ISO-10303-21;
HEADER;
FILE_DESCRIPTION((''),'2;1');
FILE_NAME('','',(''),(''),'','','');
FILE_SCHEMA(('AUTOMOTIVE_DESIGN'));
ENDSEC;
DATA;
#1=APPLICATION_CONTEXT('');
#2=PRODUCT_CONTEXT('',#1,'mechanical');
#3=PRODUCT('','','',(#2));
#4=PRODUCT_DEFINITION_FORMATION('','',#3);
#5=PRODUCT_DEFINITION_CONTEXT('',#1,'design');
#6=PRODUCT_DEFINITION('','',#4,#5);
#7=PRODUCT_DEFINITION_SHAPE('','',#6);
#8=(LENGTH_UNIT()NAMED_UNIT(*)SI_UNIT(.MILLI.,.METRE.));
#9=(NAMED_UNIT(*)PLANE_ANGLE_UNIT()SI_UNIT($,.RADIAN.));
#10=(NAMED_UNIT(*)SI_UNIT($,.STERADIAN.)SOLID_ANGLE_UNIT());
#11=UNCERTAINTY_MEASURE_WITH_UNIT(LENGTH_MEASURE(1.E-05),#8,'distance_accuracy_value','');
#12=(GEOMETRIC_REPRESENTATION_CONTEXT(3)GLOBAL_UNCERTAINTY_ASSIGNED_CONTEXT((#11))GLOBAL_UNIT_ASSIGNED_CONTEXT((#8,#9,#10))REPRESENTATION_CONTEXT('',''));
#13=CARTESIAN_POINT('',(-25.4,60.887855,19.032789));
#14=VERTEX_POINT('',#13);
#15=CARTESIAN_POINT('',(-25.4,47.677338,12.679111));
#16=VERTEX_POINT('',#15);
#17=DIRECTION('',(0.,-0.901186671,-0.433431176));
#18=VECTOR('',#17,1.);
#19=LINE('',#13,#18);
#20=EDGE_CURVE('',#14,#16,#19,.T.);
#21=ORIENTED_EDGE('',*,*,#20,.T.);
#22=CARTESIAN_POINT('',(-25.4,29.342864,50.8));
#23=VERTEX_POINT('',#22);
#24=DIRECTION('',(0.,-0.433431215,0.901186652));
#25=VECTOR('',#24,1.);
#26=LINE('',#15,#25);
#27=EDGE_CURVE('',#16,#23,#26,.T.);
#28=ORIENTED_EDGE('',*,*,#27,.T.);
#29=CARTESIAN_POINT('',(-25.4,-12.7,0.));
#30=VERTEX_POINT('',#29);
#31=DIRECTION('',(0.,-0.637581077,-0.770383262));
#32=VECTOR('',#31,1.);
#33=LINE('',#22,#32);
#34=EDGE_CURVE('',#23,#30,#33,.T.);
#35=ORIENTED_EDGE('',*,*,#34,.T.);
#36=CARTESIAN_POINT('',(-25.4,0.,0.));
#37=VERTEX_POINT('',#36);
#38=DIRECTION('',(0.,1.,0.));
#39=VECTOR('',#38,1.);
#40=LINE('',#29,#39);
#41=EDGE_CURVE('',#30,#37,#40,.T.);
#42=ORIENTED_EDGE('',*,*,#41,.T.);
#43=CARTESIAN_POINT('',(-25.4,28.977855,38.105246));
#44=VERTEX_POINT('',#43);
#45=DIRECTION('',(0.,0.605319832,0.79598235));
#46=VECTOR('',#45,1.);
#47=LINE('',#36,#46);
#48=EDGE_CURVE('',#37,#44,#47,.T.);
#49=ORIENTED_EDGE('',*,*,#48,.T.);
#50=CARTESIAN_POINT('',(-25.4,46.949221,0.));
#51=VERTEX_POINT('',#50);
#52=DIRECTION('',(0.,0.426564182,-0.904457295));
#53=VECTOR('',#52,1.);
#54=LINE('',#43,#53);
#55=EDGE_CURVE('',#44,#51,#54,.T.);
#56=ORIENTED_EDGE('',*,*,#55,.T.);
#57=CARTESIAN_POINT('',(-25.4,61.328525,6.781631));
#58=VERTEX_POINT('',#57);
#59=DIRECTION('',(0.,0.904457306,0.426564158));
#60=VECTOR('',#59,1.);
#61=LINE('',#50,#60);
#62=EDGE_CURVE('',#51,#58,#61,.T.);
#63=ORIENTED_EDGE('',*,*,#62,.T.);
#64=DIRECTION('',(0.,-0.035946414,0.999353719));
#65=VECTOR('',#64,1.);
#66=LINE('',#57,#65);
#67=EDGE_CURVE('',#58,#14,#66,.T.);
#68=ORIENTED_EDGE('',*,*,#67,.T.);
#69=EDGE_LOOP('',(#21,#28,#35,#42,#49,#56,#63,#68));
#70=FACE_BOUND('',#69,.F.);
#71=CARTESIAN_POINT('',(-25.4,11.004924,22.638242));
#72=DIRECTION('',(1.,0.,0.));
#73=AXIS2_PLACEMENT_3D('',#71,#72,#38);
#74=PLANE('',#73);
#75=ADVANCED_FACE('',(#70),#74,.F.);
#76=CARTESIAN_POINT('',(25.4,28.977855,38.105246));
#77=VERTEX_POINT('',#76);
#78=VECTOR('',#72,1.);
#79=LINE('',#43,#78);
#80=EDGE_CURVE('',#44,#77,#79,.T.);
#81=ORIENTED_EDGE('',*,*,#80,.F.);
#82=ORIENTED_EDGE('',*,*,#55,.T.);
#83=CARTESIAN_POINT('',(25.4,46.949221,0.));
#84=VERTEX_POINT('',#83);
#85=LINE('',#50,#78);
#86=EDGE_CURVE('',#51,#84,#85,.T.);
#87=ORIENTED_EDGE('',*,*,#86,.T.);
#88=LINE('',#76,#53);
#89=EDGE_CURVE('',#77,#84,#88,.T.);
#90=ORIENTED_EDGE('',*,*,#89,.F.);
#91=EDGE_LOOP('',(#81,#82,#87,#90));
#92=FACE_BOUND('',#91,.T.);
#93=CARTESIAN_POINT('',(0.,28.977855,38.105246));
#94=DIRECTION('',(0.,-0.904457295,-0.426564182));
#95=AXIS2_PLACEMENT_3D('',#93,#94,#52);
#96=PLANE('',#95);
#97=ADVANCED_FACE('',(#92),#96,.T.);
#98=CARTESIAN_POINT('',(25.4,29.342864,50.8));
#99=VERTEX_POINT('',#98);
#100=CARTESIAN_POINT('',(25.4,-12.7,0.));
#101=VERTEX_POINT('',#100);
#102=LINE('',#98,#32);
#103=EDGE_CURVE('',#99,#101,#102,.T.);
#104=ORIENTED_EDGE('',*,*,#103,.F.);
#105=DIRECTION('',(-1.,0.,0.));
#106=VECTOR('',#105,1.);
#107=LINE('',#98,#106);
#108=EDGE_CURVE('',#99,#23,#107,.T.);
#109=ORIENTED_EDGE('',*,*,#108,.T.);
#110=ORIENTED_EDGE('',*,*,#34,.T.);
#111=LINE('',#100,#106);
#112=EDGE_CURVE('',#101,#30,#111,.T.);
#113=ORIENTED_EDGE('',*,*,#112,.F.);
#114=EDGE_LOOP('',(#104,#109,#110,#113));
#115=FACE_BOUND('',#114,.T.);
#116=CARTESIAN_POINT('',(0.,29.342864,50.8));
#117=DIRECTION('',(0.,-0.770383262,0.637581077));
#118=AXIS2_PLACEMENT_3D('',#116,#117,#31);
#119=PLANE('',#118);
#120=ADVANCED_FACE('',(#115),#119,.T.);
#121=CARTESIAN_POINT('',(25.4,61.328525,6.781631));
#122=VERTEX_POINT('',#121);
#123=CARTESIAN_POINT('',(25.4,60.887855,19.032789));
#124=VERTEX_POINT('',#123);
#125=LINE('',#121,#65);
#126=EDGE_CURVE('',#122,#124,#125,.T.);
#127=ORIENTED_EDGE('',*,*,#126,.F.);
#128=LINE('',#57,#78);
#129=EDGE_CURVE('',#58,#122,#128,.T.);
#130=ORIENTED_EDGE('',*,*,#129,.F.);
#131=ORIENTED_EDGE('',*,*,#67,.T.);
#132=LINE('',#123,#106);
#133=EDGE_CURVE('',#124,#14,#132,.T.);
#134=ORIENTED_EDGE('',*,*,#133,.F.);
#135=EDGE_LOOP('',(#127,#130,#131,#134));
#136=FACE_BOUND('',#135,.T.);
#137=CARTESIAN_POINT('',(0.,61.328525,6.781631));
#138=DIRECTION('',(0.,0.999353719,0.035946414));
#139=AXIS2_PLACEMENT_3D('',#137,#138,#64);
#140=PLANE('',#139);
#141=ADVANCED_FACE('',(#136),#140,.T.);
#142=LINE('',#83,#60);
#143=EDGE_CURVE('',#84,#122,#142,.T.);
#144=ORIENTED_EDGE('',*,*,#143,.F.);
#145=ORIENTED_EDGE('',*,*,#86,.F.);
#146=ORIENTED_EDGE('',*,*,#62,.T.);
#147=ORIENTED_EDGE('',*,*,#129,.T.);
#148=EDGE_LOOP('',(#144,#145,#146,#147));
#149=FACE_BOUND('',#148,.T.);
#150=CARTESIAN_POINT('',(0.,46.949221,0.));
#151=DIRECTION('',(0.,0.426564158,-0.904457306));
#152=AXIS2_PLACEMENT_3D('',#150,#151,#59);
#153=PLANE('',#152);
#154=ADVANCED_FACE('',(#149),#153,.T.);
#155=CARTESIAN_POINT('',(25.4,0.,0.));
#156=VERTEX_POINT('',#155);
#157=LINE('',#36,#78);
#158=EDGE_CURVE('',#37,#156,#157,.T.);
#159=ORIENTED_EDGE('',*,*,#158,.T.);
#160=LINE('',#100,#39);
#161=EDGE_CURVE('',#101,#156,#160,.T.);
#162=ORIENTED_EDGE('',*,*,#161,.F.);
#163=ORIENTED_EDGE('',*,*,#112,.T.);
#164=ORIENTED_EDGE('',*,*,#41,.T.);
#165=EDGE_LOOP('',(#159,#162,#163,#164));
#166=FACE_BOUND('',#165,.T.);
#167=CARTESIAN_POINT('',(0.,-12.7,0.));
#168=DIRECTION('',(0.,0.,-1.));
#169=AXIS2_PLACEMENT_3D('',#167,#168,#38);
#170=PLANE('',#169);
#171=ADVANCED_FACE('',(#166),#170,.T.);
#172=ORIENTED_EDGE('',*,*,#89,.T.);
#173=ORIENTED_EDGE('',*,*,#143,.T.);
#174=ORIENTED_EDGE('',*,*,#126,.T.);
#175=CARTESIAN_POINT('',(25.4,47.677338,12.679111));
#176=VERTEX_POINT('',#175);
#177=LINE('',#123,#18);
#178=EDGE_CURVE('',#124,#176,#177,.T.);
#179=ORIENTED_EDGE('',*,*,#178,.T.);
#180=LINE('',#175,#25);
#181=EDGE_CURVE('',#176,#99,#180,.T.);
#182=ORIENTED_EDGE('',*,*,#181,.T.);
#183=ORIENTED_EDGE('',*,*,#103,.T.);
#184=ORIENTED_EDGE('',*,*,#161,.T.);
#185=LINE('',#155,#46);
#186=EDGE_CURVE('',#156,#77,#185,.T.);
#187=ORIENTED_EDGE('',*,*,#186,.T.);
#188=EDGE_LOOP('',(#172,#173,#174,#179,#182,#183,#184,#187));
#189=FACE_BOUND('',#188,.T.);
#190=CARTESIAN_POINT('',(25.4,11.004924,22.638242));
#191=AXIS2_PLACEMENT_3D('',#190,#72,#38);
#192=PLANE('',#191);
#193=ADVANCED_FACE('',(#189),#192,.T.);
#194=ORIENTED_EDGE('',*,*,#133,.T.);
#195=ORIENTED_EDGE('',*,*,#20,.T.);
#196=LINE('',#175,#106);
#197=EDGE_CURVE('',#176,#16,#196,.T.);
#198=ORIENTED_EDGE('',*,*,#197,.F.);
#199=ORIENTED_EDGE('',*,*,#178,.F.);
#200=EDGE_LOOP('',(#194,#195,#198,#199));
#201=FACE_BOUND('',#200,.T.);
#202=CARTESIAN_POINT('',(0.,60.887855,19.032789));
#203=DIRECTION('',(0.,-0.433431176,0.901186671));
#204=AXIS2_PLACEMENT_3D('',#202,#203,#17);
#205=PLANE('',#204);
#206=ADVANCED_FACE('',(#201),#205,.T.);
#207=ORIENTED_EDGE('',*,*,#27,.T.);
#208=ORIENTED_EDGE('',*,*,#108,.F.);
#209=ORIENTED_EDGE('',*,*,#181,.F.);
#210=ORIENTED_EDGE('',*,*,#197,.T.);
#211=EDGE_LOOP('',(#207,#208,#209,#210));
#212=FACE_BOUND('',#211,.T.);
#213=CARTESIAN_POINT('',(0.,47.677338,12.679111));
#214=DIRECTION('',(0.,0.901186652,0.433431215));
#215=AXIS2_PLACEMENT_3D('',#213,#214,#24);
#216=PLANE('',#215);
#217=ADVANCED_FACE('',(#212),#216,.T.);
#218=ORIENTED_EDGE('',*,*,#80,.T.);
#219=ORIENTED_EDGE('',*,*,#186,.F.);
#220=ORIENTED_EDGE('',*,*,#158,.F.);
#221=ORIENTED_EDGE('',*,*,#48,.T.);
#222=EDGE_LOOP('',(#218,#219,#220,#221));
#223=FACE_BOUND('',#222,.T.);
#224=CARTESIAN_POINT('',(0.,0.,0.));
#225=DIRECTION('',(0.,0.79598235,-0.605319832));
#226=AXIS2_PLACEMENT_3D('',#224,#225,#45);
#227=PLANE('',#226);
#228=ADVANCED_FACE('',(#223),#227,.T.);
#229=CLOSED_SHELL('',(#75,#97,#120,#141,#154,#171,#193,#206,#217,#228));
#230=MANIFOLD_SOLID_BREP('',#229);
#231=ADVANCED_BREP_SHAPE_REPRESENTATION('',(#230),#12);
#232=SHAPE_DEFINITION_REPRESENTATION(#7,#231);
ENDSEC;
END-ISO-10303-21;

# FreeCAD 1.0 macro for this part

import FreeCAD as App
import Part
import Sketcher
from FreeCAD import Vector
Q = App.Units.Quantity

doc = App.newDocument("Part")
body = doc.addObject("PartDesign::Body", "Body")

# Sketch on YZ plane
sketch1 = body.newObject("Sketcher::SketchObject", "Sketch")
sketch1.AttachmentSupport = (doc.getObject("YZ_Plane"), [""])
sketch1.MapMode = "FlatFace"
sketch1.addGeometry(Part.LineSegment(Vector(47.677338, 12.679111, 0), Vector(46.949221, 0, 0)), False)
sketch1.addGeometry(Part.LineSegment(Vector(46.949221, 0, 0), Vector(61.328525, 6.781631, 0)), False)
sketch1.addGeometry(Part.LineSegment(Vector(61.328525, 6.781631, 0), Vector(60.887855, 19.032789, 0)), False)
sketch1.addGeometry(Part.LineSegment(Vector(60.887855, 19.032789, 0), Vector(47.677338, 12.679111, 0)), False)
sketch1.addConstraint(Sketcher.Constraint("Coincident", 0, 2, 1, 1))
sketch1.addConstraint(Sketcher.Constraint("Coincident", 1, 2, 2, 1))
sketch1.addConstraint(Sketcher.Constraint("Coincident", 2, 2, 3, 1))
sketch1.addConstraint(Sketcher.Constraint("Coincident", 3, 2, 0, 1))
sketch1.addConstraint(Sketcher.Constraint("PointOnObject", 0, 2, -1))
sketch1.addConstraint(Sketcher.Constraint("Distance", 0, Q("0.5 in")))
sketch1.addConstraint(Sketcher.Constraint("Distance", 2, 12.259081))
sketch1.addConstraint(Sketcher.Constraint("DistanceX", -1, 1, 0, 2, 46.949221))
sketch1.addConstraint(Sketcher.Constraint("DistanceY", -1, 1, 1, 2, 6.781631))
sketch1.addConstraint(Sketcher.Constraint("DistanceY", -1, 1, 2, 2, 19.032789))
sketch1.addConstraint(Sketcher.Constraint("DistanceY", -1, 1, 3, 2, 12.679111))
sketch1.addConstraint(Sketcher.Constraint("Distance", 1, 15.898267))
pad1 = body.newObject("PartDesign::Pad", "Pad")
pad1.Profile = sketch1
pad1.Length = Q("2 in")
pad1.Midplane = True

# Sketch on YZ plane
sketch2 = body.newObject("Sketcher::SketchObject", "Sketch001")
sketch2.AttachmentSupport = (doc.getObject("YZ_Plane"), [""])
sketch2.MapMode = "FlatFace"
sketch2.addGeometry(Part.LineSegment(Vector(29, 51, 0), Vector(29, 38, 0)), False)
sketch2.addGeometry(Part.LineSegment(Vector(29, 38, 0), Vector(47, 0, 0)), False)
sketch2.addGeometry(Part.LineSegment(Vector(47, 0, 0), Vector(48, 13, 0)), False)
sketch2.addGeometry(Part.LineSegment(Vector(48, 13, 0), Vector(29, 51, 0)), False)
sketch2.addConstraint(Sketcher.Constraint("Coincident", 0, 2, 1, 1))
sketch2.addConstraint(Sketcher.Constraint("Coincident", 1, 2, 2, 1))
sketch2.addConstraint(Sketcher.Constraint("Coincident", 2, 2, 3, 1))
sketch2.addConstraint(Sketcher.Constraint("Coincident", 3, 2, 0, 1))
sketch2.addConstraint(Sketcher.Constraint("PointOnObject", 1, 2, -1))
sketch2.addConstraint(Sketcher.Constraint("Equal", 0, 2))
sketch2.addConstraint(Sketcher.Constraint("DistanceY", -1, 1, 3, 2, Q("2 in")))
sketch2.addConstraint(Sketcher.Constraint("Distance", 0, Q("0.5 in")))
sketch2.addConstraint(Sketcher.Constraint("DistanceX", 0, 2, 2, 2, Q("0.7362001 in")))
sketch2.addConstraint(Sketcher.Constraint("Distance", 1, 42.130509))
sketch2.addConstraint(Sketcher.Constraint("Distance", 3, 42.30077))
sketch2.addConstraint(Sketcher.Constraint("DistanceX", -1, 1, 1, 2, 46.949221))
pad2 = body.newObject("PartDesign::Pad", "Pad001")
pad2.Profile = sketch2
pad2.Length = Q("2 in")
pad2.Midplane = True

# Sketch on YZ plane
sketch3 = body.newObject("Sketcher::SketchObject", "Sketch002")
sketch3.AttachmentSupport = (doc.getObject("YZ_Plane"), [""])
sketch3.MapMode = "FlatFace"
sketch3.addGeometry(Part.LineSegment(Vector(-13, 0, 0), Vector(0, 0, 0)), False)
sketch3.addGeometry(Part.LineSegment(Vector(0, 0, 0), Vector(29, 38, 0)), False)
sketch3.addGeometry(Part.LineSegment(Vector(29, 38, 0), Vector(29, 51, 0)), False)
sketch3.addGeometry(Part.LineSegment(Vector(29, 51, 0), Vector(-13, 0, 0)), False)
sketch3.addConstraint(Sketcher.Constraint("Coincident", 0, 2, 1, 1))
sketch3.addConstraint(Sketcher.Constraint("Coincident", 1, 2, 2, 1))
sketch3.addConstraint(Sketcher.Constraint("Coincident", 2, 2, 3, 1))
sketch3.addConstraint(Sketcher.Constraint("Coincident", 3, 2, 0, 1))
sketch3.addConstraint(Sketcher.Constraint("Horizontal", 0))
sketch3.addConstraint(Sketcher.Constraint("Coincident", 0, 2, -1, 1))
sketch3.addConstraint(Sketcher.Constraint("DistanceX", 0, 1, 0, 2, Q("0.5 in")))
sketch3.addConstraint(Sketcher.Constraint("DistanceY", -1, 1, 2, 2, Q("2 in")))
sketch3.addConstraint(Sketcher.Constraint("Distance", 2, Q("0.5 in")))
sketch3.addConstraint(Sketcher.Constraint("DistanceX", 1, 2, 2, 2, 0.365009))
sketch3.addConstraint(Sketcher.Constraint("Distance", 1, 47.871974))
pad3 = body.newObject("PartDesign::Pad", "Pad002")
pad3.Profile = sketch3
pad3.Length = Q("2 in")
pad3.Midplane = True

doc.recompute()
